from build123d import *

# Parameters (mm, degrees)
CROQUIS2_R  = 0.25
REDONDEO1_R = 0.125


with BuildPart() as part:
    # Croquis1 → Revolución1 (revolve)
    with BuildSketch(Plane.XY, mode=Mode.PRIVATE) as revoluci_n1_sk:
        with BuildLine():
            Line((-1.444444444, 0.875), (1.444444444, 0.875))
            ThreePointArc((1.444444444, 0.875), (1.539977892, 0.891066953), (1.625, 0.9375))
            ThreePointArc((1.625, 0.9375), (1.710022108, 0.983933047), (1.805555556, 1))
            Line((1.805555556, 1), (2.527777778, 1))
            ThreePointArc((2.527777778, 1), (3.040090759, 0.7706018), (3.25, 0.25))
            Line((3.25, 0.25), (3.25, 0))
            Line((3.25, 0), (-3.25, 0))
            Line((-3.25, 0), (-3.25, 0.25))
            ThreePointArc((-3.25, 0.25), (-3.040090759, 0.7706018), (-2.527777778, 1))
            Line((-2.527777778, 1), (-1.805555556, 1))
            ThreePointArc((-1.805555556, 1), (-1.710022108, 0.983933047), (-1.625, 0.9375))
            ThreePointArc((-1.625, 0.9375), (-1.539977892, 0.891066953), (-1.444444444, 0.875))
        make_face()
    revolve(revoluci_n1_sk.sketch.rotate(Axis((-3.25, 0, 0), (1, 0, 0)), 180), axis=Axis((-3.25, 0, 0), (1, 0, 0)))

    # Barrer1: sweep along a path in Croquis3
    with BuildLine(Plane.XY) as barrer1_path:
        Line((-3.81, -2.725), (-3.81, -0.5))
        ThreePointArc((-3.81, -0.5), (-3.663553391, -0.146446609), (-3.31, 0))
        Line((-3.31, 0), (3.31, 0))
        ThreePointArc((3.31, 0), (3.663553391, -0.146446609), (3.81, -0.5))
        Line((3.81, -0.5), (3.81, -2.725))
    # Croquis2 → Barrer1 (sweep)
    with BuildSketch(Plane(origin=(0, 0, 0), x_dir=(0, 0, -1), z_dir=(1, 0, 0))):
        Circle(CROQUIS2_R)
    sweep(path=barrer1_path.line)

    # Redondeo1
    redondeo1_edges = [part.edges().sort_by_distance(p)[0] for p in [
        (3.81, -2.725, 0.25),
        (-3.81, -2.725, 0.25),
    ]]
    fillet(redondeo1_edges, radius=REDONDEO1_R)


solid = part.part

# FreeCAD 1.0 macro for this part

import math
import FreeCAD as App
import Part
import Sketcher
from FreeCAD import Vector
Q = App.Units.Quantity


def edges_at(feature, points):
    """Names of the edges that pass closest to the given points."""
    edges = feature.Shape.Edges
    near = lambda p: min(range(len(edges)), key=lambda i: edges[i].distToShape(Part.Vertex(*p))[0])
    return sorted({f"Edge{near(p) + 1}" for p in points})

doc = App.newDocument("Part")
body = doc.addObject("PartDesign::Body", "Body")

# Sketch on XY plane
sketch1 = body.newObject("Sketcher::SketchObject", "Sketch")
sketch1.AttachmentSupport = (doc.getObject("XY_Plane"), [""])
sketch1.MapMode = "FlatFace"
sketch1.addGeometry([
    Part.LineSegment(Vector(1.44, 0.88, 0), Vector(-1.44, 0.88, 0)),  # 0
    Part.ArcOfCircle(Part.Circle(Vector(-1.44, 1.17, 0), Vector(0, 0, 1), 0.29), math.radians(-128), math.radians(-90)),  # 1
    Part.ArcOfCircle(Part.Circle(Vector(-1.81, 0.71, 0), Vector(0, 0, 1), 0.29), math.radians(52), math.radians(90)),  # 2
    Part.LineSegment(Vector(-1.81, 1, 0), Vector(-2.53, 1, 0)),  # 3
    Part.ArcOfCircle(Part.Circle(Vector(-2.5, 0.25, 0), Vector(0, 0, 1), 0.75), math.radians(92), math.radians(180)),  # 4
    Part.LineSegment(Vector(-3.25, 0.25, 0), Vector(-3.25, 0, 0)),  # 5
    Part.LineSegment(Vector(-3.25, 0, 0), Vector(3.25, 0, 0)),  # 6
    Part.LineSegment(Vector(3.25, 0, 0), Vector(3.25, 0.25, 0)),  # 7
    Part.ArcOfCircle(Part.Circle(Vector(2.5, 0.25, 0), Vector(0, 0, 1), 0.75), math.radians(0), math.radians(88)),  # 8
    Part.LineSegment(Vector(2.53, 1, 0), Vector(1.81, 1, 0)),  # 9
    Part.ArcOfCircle(Part.Circle(Vector(1.81, 0.71, 0), Vector(0, 0, 1), 0.29), math.radians(90), math.radians(128)),  # 10
    Part.ArcOfCircle(Part.Circle(Vector(1.44, 1.17, 0), Vector(0, 0, 1), 0.29), math.radians(-90), math.radians(-52)),  # 11
], False)
sketch1.addConstraint([
    Sketcher.Constraint("Tangent", 0, 2, 1, 2),
    Sketcher.Constraint("Tangent", 1, 1, 2, 1),
    Sketcher.Constraint("Tangent", 2, 2, 3, 1),
    Sketcher.Constraint("Coincident", 3, 2, 4, 1),
    Sketcher.Constraint("Tangent", 4, 2, 5, 1),
    Sketcher.Constraint("Coincident", 5, 2, 6, 1),
    Sketcher.Constraint("Coincident", 6, 2, 7, 1),
    Sketcher.Constraint("Tangent", 7, 2, 8, 1),
    Sketcher.Constraint("Coincident", 8, 2, 9, 1),
    Sketcher.Constraint("Tangent", 9, 2, 10, 1),
    Sketcher.Constraint("Tangent", 10, 2, 11, 2),
    Sketcher.Constraint("Tangent", 11, 1, 0, 1),
    Sketcher.Constraint("Horizontal", 0),
    Sketcher.Constraint("Horizontal", 3),
    Sketcher.Constraint("Vertical", 5),
    Sketcher.Constraint("Horizontal", 6),
    Sketcher.Constraint("Vertical", 7),
    Sketcher.Constraint("Horizontal", 9),
    Sketcher.Constraint("Equal", 1, 2),
    Sketcher.Constraint("Equal", 4, 8),
    Sketcher.Constraint("Equal", 2, 10),
    Sketcher.Constraint("Equal", 10, 11),
    Sketcher.Constraint("Symmetric", 5, 2, 6, 2, -1, 1),
    Sketcher.Constraint("Symmetric", 2, 3, 10, 3, -2),
    Sketcher.Constraint("Horizontal", 4, 3, 8, 3),
    Sketcher.Constraint("DistanceX", 6, 1, 6, 2, Q("6.5 mm")),
    Sketcher.Constraint("DistanceY", -1, 1, 2, 2, Q("1 mm")),
    Sketcher.Constraint("DistanceY", 5, 2, 5, 1, Q("0.25 mm")),
    Sketcher.Constraint("DistanceX", 1, 3, 10, 3, Q("3.25 mm")),
    Sketcher.Constraint("DistanceY", -1, 1, 0, 2, Q("0.875 mm")),
    Sketcher.Constraint("Radius", 1, Q("0.292052 mm")),
    Sketcher.Constraint("Radius", 4, Q("0.750534 mm")),
])
revolution = body.newObject("PartDesign::Revolution", "Revolution")
revolution.Profile = sketch1
revolution.ReferenceAxis = (sketch1, ["H_Axis"])
revolution.Angle = 360

# Sketch on YZ plane
sketch2 = body.newObject("Sketcher::SketchObject", "Sketch001")
sketch2.AttachmentSupport = (doc.getObject("YZ_Plane"), [""])
sketch2.MapMode = "FlatFace"
sketch2.addGeometry(Part.Circle(Vector(0, 0, 0), Vector(0, 0, 1), 0.25), False)
sketch2.addConstraint([
    Sketcher.Constraint("Coincident", 0, 3, -1, 1),
    Sketcher.Constraint("Diameter", 0, Q("0.5 mm")),
])

# Sketch on XY plane
sketch3 = body.newObject("Sketcher::SketchObject", "Sketch002")
sketch3.AttachmentSupport = (doc.getObject("XY_Plane"), [""])
sketch3.MapMode = "FlatFace"
sketch3.addGeometry([
    Part.LineSegment(Vector(-3.81, -2.73, 0), Vector(-3.81, -0.5, 0)),  # 0
    Part.ArcOfCircle(Part.Circle(Vector(-3.31, -0.5, 0), Vector(0, 0, 1), 0.5), math.radians(90), math.radians(180)),  # 1
    Part.LineSegment(Vector(-3.31, 0, 0), Vector(3.31, 0, 0)),  # 2
    Part.ArcOfCircle(Part.Circle(Vector(3.31, -0.5, 0), Vector(0, 0, 1), 0.5), math.radians(0), math.radians(90)),  # 3
    Part.LineSegment(Vector(3.81, -0.5, 0), Vector(3.81, -2.73, 0)),  # 4
], False)
sketch3.addConstraint([
    Sketcher.Constraint("Tangent", 0, 2, 1, 2),
    Sketcher.Constraint("Tangent", 1, 1, 2, 1),
    Sketcher.Constraint("Tangent", 2, 2, 3, 2),
    Sketcher.Constraint("Tangent", 3, 1, 4, 1),
    Sketcher.Constraint("Vertical", 0),
    Sketcher.Constraint("Horizontal", 2),
    Sketcher.Constraint("Vertical", 4),
    Sketcher.Constraint("Equal", 1, 3),
    Sketcher.Constraint("Symmetric", 1, 1, 2, 2, -1, 1),
    Sketcher.Constraint("Horizontal", 0, 1, 4, 2),
    Sketcher.Constraint("Radius", 1, Q("0.5 mm")),
    Sketcher.Constraint("DistanceX", 2, 1, 2, 2, Q("6.62 mm")),
    Sketcher.Constraint("DistanceY", 0, 1, 0, 2, Q("2.225 mm")),
])
doc.recompute()

additivepipe = body.newObject("PartDesign::AdditivePipe", "AdditivePipe")
additivepipe.Profile = sketch2
additivepipe.Spine = (sketch3, ["Edge1", "Edge2", "Edge3", "Edge4", "Edge5"])
doc.recompute()

fillet = body.newObject("PartDesign::Fillet", "Fillet")
fillet.Base = (additivepipe, edges_at(additivepipe, [(3.81, -2.725, 0.25), (-3.81, -2.725, 0.25)]))
fillet.Radius = 0.125

doc.recompute()
